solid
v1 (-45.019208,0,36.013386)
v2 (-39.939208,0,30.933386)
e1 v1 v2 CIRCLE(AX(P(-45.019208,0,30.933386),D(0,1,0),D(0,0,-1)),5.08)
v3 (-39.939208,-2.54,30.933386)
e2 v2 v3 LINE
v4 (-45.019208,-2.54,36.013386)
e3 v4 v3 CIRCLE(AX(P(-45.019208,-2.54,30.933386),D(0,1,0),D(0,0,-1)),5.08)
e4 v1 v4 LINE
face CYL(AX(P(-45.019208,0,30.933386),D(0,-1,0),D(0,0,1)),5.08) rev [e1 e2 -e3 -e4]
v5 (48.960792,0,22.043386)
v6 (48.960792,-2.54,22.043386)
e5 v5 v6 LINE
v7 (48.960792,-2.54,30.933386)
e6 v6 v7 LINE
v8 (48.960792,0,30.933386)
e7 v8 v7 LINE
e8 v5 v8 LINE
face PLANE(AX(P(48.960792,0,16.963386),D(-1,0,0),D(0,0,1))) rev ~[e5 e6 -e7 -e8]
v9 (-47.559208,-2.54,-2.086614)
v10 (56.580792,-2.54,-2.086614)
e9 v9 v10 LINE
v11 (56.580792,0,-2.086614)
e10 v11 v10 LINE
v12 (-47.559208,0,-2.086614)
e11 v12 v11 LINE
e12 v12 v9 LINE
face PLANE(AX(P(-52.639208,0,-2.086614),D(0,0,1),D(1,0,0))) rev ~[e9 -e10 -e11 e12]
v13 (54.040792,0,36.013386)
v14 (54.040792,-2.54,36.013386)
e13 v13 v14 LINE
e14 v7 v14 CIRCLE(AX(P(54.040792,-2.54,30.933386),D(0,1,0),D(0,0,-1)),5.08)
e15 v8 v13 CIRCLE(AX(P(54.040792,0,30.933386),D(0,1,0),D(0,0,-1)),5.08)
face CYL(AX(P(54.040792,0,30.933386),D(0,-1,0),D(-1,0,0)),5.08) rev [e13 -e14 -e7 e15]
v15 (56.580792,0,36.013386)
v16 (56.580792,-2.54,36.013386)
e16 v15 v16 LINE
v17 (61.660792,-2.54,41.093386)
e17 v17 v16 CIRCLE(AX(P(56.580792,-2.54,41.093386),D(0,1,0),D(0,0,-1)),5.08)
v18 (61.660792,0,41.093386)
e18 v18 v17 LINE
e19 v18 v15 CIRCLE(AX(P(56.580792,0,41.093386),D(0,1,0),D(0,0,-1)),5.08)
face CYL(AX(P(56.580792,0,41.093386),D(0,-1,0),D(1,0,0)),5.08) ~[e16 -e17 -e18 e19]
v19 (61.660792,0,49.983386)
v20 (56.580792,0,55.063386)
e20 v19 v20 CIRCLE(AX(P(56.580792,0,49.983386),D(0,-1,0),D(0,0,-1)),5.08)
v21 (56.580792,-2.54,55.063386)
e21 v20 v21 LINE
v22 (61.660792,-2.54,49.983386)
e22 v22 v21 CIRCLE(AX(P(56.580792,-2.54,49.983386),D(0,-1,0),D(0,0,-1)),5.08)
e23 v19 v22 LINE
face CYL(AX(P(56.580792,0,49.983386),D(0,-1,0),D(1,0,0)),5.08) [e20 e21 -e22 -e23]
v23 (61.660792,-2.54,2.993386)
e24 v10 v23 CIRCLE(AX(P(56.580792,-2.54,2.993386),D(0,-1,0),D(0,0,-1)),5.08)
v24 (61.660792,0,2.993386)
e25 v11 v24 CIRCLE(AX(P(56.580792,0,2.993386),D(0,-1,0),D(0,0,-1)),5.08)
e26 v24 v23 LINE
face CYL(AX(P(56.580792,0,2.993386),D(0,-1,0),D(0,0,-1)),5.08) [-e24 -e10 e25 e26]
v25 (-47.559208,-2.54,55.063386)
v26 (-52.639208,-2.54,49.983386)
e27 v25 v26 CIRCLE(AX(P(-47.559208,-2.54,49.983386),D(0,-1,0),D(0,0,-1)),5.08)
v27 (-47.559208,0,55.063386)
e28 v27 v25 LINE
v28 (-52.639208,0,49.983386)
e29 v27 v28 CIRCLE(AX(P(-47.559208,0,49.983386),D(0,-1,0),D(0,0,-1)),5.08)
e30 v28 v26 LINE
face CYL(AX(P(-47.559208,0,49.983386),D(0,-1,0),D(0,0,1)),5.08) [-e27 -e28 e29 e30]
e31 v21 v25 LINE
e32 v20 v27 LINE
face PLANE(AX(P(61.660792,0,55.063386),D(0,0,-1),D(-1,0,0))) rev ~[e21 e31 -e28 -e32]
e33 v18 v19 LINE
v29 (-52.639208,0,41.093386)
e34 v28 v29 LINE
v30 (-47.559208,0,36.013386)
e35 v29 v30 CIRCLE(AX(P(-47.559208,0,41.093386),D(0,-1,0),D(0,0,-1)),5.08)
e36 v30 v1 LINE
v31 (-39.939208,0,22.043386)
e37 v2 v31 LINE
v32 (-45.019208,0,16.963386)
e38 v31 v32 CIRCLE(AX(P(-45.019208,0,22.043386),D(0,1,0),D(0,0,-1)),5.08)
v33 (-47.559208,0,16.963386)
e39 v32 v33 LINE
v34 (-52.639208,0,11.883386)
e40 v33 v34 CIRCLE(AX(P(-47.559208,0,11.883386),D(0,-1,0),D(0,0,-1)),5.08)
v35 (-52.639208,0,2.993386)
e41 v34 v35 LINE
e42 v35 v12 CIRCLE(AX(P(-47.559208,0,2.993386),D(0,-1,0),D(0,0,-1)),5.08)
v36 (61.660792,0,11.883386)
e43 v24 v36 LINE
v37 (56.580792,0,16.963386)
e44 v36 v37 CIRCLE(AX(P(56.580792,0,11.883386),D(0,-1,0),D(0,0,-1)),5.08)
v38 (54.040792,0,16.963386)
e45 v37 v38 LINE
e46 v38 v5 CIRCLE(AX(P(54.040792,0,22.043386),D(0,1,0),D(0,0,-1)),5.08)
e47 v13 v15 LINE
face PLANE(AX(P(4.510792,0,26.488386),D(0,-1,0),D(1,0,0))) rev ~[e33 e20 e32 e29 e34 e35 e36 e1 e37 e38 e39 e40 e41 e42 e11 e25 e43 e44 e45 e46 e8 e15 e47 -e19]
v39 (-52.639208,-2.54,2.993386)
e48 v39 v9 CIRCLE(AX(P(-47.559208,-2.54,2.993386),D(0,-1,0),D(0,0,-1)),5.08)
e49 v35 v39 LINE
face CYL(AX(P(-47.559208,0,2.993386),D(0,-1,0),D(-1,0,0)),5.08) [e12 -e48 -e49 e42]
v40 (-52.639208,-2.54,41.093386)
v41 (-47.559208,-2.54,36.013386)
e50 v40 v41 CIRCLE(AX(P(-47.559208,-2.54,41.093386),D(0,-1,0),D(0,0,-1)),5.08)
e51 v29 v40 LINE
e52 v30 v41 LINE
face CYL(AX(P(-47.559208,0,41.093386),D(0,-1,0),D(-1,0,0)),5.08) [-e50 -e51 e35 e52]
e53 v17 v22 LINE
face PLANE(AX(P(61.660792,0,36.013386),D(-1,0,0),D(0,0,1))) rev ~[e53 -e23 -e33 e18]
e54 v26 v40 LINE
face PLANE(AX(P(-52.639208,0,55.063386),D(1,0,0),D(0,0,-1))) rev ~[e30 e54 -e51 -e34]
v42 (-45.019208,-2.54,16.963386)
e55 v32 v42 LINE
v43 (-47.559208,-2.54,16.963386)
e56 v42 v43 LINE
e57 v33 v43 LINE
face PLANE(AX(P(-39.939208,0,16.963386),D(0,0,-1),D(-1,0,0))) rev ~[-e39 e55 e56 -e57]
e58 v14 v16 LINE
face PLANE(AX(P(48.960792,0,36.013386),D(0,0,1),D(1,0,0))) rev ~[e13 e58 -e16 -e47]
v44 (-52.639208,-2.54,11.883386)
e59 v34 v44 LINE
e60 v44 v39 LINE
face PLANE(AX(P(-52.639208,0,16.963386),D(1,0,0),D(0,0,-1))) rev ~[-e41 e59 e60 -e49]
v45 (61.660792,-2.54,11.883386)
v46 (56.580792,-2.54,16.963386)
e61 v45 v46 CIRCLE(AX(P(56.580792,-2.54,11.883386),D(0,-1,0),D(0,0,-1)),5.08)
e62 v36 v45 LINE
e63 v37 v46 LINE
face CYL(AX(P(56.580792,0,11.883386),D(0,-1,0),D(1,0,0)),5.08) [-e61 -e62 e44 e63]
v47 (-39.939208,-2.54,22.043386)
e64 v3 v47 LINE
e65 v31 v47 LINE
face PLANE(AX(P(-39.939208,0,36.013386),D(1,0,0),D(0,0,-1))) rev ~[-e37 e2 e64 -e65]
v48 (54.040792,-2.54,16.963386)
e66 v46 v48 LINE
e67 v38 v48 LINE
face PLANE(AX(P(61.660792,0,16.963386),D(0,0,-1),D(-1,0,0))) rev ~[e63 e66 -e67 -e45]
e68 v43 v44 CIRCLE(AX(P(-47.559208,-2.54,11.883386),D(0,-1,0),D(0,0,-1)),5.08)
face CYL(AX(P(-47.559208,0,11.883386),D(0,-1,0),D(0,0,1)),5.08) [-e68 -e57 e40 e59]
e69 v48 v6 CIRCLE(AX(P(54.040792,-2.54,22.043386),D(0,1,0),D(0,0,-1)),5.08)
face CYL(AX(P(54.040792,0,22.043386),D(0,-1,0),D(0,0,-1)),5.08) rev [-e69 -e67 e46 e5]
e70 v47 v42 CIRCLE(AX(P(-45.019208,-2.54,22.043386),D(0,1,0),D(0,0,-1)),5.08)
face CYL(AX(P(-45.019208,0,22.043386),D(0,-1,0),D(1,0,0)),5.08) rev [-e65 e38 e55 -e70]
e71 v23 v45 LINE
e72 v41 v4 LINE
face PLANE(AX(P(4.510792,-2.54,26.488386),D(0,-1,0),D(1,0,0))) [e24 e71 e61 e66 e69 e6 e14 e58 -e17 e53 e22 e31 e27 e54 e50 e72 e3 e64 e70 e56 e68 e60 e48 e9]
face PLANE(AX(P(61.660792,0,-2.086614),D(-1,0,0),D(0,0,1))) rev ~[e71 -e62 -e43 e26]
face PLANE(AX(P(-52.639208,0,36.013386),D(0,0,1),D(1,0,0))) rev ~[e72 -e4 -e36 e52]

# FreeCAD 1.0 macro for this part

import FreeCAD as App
import Part
import Sketcher
from FreeCAD import Vector
Q = App.Units.Quantity


def edges_at(feature, points):
    """Names of the edges that pass closest to the given points."""
    edges = feature.Shape.Edges
    near = lambda p: min(range(len(edges)), key=lambda i: edges[i].distToShape(Part.Vertex(*p))[0])
    return sorted({f"Edge{near(p) + 1}" for p in points})


def add_polygon(sketch, points):
    """Adds a closed chain of lines whose ends are joined by coincident constraints."""
    first, n = sketch.GeometryCount, len(points)
    for a, b in zip(points, points[1:] + points[:1]):
        sketch.addGeometry(Part.LineSegment(App.Vector(*a, 0), App.Vector(*b, 0)), False)
    for i in range(n):
        sketch.addConstraint(Sketcher.Constraint("Coincident", first + i, 2, first + (i + 1) % n, 1))

doc = App.newDocument("Part")
body = doc.addObject("PartDesign::Body", "Body")

sketch1 = body.newObject("Sketcher::SketchObject", "Sketch")
sketch1.AttachmentSupport = (doc.getObject("XZ_Plane"), [""])
sketch1.MapMode = "FlatFace"
add_polygon(sketch1, [(62, 36), (62, 55), (-53, 55), (-53, 36), (-40, 36), (-40, 17), (-53, 17), (-53, -2), (62, -2), (62, 17), (49, 17), (49, 36)])
sketch1.addConstraint(Sketcher.Constraint("Vertical", 0))
sketch1.addConstraint(Sketcher.Constraint("Horizontal", 1))
sketch1.addConstraint(Sketcher.Constraint("Vertical", 2))
sketch1.addConstraint(Sketcher.Constraint("Horizontal", 3))
sketch1.addConstraint(Sketcher.Constraint("Vertical", 4))
sketch1.addConstraint(Sketcher.Constraint("Horizontal", 5))
sketch1.addConstraint(Sketcher.Constraint("Vertical", 6))
sketch1.addConstraint(Sketcher.Constraint("Horizontal", 7))
sketch1.addConstraint(Sketcher.Constraint("Vertical", 8))
sketch1.addConstraint(Sketcher.Constraint("Horizontal", 9))
sketch1.addConstraint(Sketcher.Constraint("Vertical", 10))
sketch1.addConstraint(Sketcher.Constraint("Horizontal", 11))
sketch1.addConstraint(Sketcher.Constraint("Horizontal", 5, 2, 8, 2))
sketch1.addConstraint(Sketcher.Constraint("Horizontal", 3, 2, 10, 2))
sketch1.addConstraint(Sketcher.Constraint("Vertical", 2, 2, 5, 2))
sketch1.addConstraint(Sketcher.Constraint("Vertical", 0, 2, 7, 2))
sketch1.addConstraint(Sketcher.Constraint("Equal", 5, 9))
sketch1.addConstraint(Sketcher.Constraint("Equal", 2, 4))
sketch1.addConstraint(Sketcher.Constraint("Equal", 4, 6))
sketch1.addConstraint(Sketcher.Constraint("DistanceX", 1, 2, 1, 1, Q("4.5 in")))
sketch1.addConstraint(Sketcher.Constraint("DistanceX", 3, 1, 3, 2, Q("0.5 in")))
sketch1.addConstraint(Sketcher.Constraint("DistanceY", 0, 1, 0, 2, Q("0.75 in")))
sketch1.addConstraint(Sketcher.Constraint("DistanceX", 1, 2, -1, 1, 52.639208))
sketch1.addConstraint(Sketcher.Constraint("DistanceY", -1, 1, 0, 2, 55.063386))
pad1 = body.newObject("PartDesign::Pad", "Pad")
pad1.Profile = sketch1
pad1.Length = Q("0.1 in")
doc.recompute()

fillet = body.newObject("PartDesign::Fillet", "Fillet")
fillet.Base = (pad1, edges_at(pad1, [
    (61.661, -1.27, 55.063),
    (61.661, -1.27, 36.013),
    (48.961, -1.27, 36.013),
    (48.961, -1.27, 16.963),
    (61.661, -1.27, 16.963),
    (61.661, -1.27, -2.087),
    (-39.939, -1.27, 16.963),
    (-39.939, -1.27, 36.013),
    (-52.639, -1.27, 36.013),
    (-52.639, -1.27, 55.063),
    (-52.639, -1.27, 16.963),
    (-52.639, -1.27, -2.087),
]))
fillet.Radius = Q("0.2 in")

doc.recompute()
